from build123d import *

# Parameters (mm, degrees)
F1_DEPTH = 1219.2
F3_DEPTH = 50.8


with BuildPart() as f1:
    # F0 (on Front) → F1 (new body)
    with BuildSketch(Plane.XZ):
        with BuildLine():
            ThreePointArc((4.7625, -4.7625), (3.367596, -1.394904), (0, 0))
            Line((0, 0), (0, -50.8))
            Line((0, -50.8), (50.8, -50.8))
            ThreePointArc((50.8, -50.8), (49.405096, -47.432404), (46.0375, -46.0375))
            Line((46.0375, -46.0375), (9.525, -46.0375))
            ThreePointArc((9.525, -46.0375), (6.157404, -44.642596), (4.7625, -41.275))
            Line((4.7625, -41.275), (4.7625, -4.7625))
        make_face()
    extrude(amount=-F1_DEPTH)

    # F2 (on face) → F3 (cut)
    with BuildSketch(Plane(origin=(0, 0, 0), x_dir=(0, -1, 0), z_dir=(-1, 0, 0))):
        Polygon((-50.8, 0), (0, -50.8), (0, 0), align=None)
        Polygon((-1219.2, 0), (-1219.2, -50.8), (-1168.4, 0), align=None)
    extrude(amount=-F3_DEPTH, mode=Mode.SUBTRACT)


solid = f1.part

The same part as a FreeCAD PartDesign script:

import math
import FreeCAD as App
import Part
import Sketcher
from FreeCAD import Vector
Q = App.Units.Quantity


def add_polygon(sketch, points):
    """Adds a closed chain of lines whose ends are joined by coincident constraints."""
    first, n = sketch.GeometryCount, len(points)
    for a, b in zip(points, points[1:] + points[:1]):
        sketch.addGeometry(Part.LineSegment(App.Vector(*a, 0), App.Vector(*b, 0)), False)
    for i in range(n):
        sketch.addConstraint(Sketcher.Constraint("Coincident", first + i, 2, first + (i + 1) % n, 1))

doc = App.newDocument("Part")
body = doc.addObject("PartDesign::Body", "Body")

sketch1 = body.newObject("Sketcher::SketchObject", "Sketch")
sketch1.AttachmentSupport = (doc.getObject("XZ_Plane"), [""])
sketch1.MapMode = "FlatFace"
sketch1.addGeometry(Part.ArcOfCircle(Part.Circle(Vector(0, -4.8, 0), Vector(0, 0, 1), 4.8), math.radians(0), math.radians(90)), False)
sketch1.addGeometry(Part.LineSegment(Vector(0, 0, 0), Vector(0, -50.8, 0)), False)
sketch1.addGeometry(Part.LineSegment(Vector(0, -50.8, 0), Vector(50.8, -50.8, 0)), False)
sketch1.addGeometry(Part.ArcOfCircle(Part.Circle(Vector(46, -50.8, 0), Vector(0, 0, 1), 4.8), math.radians(0), math.radians(90)), False)
sketch1.addGeometry(Part.LineSegment(Vector(46, -46, 0), Vector(9.5, -46, 0)), False)
sketch1.addGeometry(Part.ArcOfCircle(Part.Circle(Vector(9.5, -41.3, 0), Vector(0, 0, 1), 4.8), math.radians(-180), math.radians(-90)), False)
sketch1.addGeometry(Part.LineSegment(Vector(4.8, -41.3, 0), Vector(4.8, -4.8, 0)), False)
sketch1.addConstraint(Sketcher.Constraint("Coincident", 0, 2, 1, 1))
sketch1.addConstraint(Sketcher.Constraint("Coincident", 1, 2, 2, 1))
sketch1.addConstraint(Sketcher.Constraint("Coincident", 2, 2, 3, 1))
sketch1.addConstraint(Sketcher.Constraint("Tangent", 3, 2, 4, 1))
sketch1.addConstraint(Sketcher.Constraint("Tangent", 4, 2, 5, 2))
sketch1.addConstraint(Sketcher.Constraint("Tangent", 5, 1, 6, 1))
sketch1.addConstraint(Sketcher.Constraint("Tangent", 6, 2, 0, 1))
sketch1.addConstraint(Sketcher.Constraint("Vertical", 1))
sketch1.addConstraint(Sketcher.Constraint("Horizontal", 2))
sketch1.addConstraint(Sketcher.Constraint("Horizontal", 4))
sketch1.addConstraint(Sketcher.Constraint("Vertical", 6))
sketch1.addConstraint(Sketcher.Constraint("Coincident", 0, 2, -1, 1))
sketch1.addConstraint(Sketcher.Constraint("Equal", 0, 3))
sketch1.addConstraint(Sketcher.Constraint("Equal", 3, 5))
sketch1.addConstraint(Sketcher.Constraint("PointOnObject", 0, 3, -2))
sketch1.addConstraint(Sketcher.Constraint("Horizontal", 3, 3, 1, 2))
sketch1.addConstraint(Sketcher.Constraint("Equal", 2, 1))
sketch1.addConstraint(Sketcher.Constraint("DistanceX", 2, 1, 2, 2, Q("2 in")))
sketch1.addConstraint(Sketcher.Constraint("Radius", 0, Q("0.1875 in")))
pad1 = body.newObject("PartDesign::Pad", "Pad")
pad1.Profile = sketch1
pad1.Length = Q("48 in")
pad1.Reversed = True

sketch2 = body.newObject("Sketcher::SketchObject", "Sketch001")
sketch2.AttachmentSupport = (doc.getObject("YZ_Plane"), [""])
sketch2.MapMode = "FlatFace"
add_polygon(sketch2, [(51, 0), (0, -51), (0, 0)])
add_polygon(sketch2, [(1219, 0), (1219, -51), (1168, 0)])
sketch2.addConstraint(Sketcher.Constraint("Vertical", 1))
sketch2.addConstraint(Sketcher.Constraint("Horizontal", 2))
sketch2.addConstraint(Sketcher.Constraint("Vertical", 3))
sketch2.addConstraint(Sketcher.Constraint("Horizontal", 5))
sketch2.addConstraint(Sketcher.Constraint("Coincident", 1, 2, -1, 1))
sketch2.addConstraint(Sketcher.Constraint("PointOnObject", 4, 2, -1))
sketch2.addConstraint(Sketcher.Constraint("Perpendicular", 0, 4))
sketch2.addConstraint(Sketcher.Constraint("Horizontal", 0, 2, 3, 2))
sketch2.addConstraint(Sketcher.Constraint("Equal", 2, 5))
sketch2.addConstraint(Sketcher.Constraint("DistanceX", 2, 1, 2, 2, Q("2 in")))
sketch2.addConstraint(Sketcher.Constraint("DistanceX", -1, 1, 3, 2, Q("48 in")))
pocket1 = body.newObject("PartDesign::Pocket", "Pocket")
pocket1.Profile = sketch2
pocket1.Length = Q("2 in")
pocket1.Reversed = True

doc.recompute()
